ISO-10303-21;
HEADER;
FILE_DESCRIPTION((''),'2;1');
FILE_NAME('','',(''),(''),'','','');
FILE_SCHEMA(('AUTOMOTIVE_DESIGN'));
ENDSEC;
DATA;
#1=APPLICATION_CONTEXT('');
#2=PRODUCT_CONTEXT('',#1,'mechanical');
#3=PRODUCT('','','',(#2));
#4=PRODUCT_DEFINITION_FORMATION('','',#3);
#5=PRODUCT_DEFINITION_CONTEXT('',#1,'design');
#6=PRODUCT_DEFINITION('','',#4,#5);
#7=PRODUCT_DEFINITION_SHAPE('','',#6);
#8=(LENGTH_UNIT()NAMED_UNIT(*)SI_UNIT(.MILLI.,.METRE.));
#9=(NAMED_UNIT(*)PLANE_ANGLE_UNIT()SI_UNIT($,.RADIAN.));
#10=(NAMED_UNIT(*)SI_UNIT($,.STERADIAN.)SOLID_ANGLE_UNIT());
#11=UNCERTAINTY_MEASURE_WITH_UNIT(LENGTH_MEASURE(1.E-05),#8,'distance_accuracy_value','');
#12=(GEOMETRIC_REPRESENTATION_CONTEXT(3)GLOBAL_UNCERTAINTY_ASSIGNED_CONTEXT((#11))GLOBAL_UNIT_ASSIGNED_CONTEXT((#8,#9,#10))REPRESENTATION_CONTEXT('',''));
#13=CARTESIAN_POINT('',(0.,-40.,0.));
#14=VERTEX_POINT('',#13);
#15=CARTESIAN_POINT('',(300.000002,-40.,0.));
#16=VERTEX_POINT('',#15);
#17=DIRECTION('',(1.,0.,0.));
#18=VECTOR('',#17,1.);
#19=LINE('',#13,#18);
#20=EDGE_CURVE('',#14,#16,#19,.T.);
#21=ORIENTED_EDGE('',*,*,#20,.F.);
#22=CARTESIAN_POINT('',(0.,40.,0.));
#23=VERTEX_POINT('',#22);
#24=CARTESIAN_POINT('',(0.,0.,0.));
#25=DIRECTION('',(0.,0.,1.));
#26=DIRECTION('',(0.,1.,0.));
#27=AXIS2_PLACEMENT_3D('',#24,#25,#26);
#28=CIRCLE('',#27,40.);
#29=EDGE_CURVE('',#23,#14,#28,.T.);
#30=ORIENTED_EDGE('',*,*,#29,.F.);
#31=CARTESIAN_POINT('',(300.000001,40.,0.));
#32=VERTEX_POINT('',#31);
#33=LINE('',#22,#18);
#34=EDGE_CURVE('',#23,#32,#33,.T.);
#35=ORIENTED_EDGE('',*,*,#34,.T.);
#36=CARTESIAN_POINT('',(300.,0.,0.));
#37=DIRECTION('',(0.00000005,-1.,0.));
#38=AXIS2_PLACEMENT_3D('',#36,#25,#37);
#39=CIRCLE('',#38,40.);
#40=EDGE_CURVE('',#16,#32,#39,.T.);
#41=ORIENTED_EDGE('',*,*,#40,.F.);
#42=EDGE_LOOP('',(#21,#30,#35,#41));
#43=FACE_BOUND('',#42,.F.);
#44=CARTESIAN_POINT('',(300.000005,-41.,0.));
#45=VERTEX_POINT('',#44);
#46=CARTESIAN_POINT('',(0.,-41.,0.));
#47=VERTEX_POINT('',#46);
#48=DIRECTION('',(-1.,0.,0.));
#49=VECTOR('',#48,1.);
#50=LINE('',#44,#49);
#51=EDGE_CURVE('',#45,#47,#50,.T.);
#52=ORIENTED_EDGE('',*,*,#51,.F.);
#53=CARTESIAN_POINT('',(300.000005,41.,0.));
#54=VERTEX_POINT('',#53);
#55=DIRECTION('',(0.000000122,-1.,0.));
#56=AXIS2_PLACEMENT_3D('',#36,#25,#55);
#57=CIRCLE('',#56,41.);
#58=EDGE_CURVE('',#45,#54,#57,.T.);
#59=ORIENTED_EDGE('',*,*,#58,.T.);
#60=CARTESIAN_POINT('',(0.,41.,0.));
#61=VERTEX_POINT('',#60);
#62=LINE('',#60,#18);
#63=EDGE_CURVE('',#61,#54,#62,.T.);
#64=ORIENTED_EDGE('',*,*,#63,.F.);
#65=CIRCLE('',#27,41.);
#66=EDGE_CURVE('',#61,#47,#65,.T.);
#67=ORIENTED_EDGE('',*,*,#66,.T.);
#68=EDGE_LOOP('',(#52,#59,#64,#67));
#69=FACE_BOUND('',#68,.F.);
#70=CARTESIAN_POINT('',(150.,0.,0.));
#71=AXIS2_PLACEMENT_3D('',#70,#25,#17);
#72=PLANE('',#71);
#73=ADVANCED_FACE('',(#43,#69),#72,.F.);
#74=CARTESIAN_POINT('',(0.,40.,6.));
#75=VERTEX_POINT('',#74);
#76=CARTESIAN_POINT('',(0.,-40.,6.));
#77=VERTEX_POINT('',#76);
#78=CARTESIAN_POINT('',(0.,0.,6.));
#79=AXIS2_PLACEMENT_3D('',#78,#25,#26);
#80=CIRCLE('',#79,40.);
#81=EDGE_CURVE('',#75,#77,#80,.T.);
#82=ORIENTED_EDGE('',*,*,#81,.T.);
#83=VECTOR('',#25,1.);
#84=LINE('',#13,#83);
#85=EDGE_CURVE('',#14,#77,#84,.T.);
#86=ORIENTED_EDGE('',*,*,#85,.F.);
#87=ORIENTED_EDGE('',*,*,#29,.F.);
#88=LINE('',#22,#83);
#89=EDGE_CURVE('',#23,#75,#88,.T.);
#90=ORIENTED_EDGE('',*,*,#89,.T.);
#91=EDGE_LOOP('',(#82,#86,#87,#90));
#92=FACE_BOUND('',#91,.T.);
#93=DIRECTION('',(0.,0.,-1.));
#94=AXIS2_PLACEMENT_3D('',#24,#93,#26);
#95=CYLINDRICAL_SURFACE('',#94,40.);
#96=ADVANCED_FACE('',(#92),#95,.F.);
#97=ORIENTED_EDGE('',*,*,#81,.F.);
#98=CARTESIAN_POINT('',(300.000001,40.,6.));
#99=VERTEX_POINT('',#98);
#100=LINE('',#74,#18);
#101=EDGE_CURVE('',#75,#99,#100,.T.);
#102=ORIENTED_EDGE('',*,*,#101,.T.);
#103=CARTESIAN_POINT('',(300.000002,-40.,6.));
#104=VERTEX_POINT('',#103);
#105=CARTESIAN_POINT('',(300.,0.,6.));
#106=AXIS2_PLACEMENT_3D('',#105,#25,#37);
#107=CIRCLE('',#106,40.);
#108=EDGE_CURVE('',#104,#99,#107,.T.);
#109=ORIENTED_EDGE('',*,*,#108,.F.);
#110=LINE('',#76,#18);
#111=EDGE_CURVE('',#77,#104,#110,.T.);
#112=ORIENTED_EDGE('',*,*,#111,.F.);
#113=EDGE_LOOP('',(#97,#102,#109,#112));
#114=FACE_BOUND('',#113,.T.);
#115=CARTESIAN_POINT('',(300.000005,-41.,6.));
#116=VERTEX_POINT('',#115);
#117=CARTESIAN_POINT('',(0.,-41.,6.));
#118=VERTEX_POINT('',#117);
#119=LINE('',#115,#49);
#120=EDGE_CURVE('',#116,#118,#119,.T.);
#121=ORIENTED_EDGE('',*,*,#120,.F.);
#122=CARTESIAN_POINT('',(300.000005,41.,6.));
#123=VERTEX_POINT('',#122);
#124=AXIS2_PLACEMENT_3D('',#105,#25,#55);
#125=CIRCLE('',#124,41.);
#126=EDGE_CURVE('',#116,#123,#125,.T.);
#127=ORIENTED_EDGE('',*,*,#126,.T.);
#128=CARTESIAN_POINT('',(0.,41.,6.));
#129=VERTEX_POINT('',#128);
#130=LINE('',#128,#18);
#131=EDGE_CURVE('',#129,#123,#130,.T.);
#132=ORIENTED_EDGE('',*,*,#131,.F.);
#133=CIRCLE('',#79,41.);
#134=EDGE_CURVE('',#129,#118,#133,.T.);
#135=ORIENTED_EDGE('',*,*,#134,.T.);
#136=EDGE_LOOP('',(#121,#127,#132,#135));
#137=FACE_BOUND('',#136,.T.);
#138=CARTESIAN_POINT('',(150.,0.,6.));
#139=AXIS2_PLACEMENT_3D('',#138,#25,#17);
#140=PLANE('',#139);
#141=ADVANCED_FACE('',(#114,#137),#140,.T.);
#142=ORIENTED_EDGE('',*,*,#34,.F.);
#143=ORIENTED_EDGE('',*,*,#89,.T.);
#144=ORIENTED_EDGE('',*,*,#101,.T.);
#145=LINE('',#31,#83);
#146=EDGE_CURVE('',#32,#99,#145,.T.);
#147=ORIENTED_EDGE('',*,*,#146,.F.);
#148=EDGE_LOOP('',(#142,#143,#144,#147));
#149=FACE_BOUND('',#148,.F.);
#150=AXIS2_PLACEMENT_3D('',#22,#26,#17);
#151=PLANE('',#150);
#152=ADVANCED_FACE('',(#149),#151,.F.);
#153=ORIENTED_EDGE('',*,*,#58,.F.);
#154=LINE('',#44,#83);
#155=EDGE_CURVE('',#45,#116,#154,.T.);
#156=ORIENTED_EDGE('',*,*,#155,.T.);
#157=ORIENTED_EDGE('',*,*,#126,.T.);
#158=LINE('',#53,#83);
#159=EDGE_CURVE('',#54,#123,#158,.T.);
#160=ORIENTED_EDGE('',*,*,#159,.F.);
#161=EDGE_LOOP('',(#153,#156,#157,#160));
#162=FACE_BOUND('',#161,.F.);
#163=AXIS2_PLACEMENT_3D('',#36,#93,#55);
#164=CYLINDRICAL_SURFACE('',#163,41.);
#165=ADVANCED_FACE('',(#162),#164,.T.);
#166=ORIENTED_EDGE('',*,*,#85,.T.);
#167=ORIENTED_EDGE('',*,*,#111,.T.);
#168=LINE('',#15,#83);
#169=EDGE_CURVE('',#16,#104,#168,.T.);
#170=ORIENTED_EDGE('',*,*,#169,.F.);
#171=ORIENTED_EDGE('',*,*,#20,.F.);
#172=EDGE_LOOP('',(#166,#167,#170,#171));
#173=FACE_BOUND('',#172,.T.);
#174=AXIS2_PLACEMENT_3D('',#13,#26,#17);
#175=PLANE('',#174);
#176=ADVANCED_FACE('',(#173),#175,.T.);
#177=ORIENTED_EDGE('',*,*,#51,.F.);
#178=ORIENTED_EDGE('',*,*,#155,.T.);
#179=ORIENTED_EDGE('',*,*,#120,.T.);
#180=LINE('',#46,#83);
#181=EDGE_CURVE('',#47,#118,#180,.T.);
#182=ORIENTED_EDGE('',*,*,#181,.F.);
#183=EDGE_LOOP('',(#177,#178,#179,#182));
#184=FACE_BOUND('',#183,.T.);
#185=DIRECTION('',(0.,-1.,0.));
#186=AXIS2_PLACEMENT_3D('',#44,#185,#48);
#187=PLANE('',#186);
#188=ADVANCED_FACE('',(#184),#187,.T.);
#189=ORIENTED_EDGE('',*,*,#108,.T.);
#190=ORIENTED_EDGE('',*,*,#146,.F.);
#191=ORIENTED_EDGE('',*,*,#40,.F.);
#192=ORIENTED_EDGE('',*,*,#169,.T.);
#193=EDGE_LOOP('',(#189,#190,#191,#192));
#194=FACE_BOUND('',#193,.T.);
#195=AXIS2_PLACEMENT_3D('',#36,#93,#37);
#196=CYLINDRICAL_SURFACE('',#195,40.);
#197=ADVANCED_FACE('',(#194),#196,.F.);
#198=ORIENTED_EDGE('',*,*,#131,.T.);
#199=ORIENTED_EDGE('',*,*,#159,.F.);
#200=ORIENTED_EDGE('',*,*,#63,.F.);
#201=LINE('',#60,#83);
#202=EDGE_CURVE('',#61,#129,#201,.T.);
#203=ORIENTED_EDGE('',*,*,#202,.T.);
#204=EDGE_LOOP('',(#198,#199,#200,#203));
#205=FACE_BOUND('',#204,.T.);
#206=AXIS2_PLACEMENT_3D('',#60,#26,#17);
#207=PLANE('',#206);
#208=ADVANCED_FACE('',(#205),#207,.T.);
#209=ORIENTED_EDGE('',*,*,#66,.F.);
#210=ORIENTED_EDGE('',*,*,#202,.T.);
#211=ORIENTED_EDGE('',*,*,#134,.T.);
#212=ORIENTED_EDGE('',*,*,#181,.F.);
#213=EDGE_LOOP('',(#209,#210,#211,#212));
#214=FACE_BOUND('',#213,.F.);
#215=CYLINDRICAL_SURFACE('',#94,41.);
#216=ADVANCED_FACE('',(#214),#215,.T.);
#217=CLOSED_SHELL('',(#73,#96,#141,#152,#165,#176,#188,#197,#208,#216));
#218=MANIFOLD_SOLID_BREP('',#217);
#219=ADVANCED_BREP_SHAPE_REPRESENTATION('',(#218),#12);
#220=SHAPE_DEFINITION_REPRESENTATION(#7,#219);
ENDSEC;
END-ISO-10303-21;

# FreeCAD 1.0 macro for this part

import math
import FreeCAD as App
import Part
import Sketcher

doc = App.newDocument("Part")
body = doc.addObject("PartDesign::Body", "Body")

# Sketch on XY plane
sketch1 = body.newObject("Sketcher::SketchObject", "Sketch")
sketch1.AttachmentSupport = (doc.getObject("XY_Plane"), [""])
sketch1.MapMode = "FlatFace"
sketch1.addGeometry([
    Part.ArcOfCircle(Part.Circle(App.Vector(0, 0, 0), App.Vector(0, 0, 1), 41), math.radians(90), math.radians(270)),  # 0
    Part.LineSegment(App.Vector(0, -41, 0), App.Vector(300, -41, 0)),  # 1
    Part.ArcOfCircle(Part.Circle(App.Vector(300, 0, 0), App.Vector(0, 0, 1), 41), math.radians(-90), math.radians(90)),  # 2
    Part.LineSegment(App.Vector(300, 41, 0), App.Vector(0, 41, 0)),  # 3
    Part.ArcOfCircle(Part.Circle(App.Vector(0, 0, 0), App.Vector(0, 0, 1), 40), math.radians(90), math.radians(270)),  # 4
    Part.LineSegment(App.Vector(0, 40, 0), App.Vector(300, 40, 0)),  # 5
    Part.ArcOfCircle(Part.Circle(App.Vector(300, 0, 0), App.Vector(0, 0, 1), 40), math.radians(-90), math.radians(90)),  # 6
    Part.LineSegment(App.Vector(300, -40, 0), App.Vector(0, -40, 0)),  # 7
], False)
sketch1.addConstraint([
    Sketcher.Constraint("Tangent", 0, 2, 1, 1),
    Sketcher.Constraint("Tangent", 1, 2, 2, 1),
    Sketcher.Constraint("Tangent", 2, 2, 3, 1),
    Sketcher.Constraint("Tangent", 3, 2, 0, 1),
    Sketcher.Constraint("Tangent", 4, 1, 5, 1),
    Sketcher.Constraint("Tangent", 5, 2, 6, 2),
    Sketcher.Constraint("Tangent", 6, 1, 7, 1),
    Sketcher.Constraint("Tangent", 7, 2, 4, 2),
    Sketcher.Constraint("Horizontal", 1),
    Sketcher.Constraint("Horizontal", 3),
    Sketcher.Constraint("Horizontal", 5),
    Sketcher.Constraint("Horizontal", 7),
    Sketcher.Constraint("Coincident", 0, 3, -1, 1),
    Sketcher.Constraint("Coincident", 4, 3, -1, 1),
    Sketcher.Constraint("Radius", 0, 41.0),
    Sketcher.Constraint("Radius", 4, 40.0),
    Sketcher.Constraint("DistanceX", 5, 1, 5, 2, 300.000001),
    Sketcher.Constraint("DistanceX", -1, 1, 2, 3, 300.0),
])
pad1 = body.newObject("PartDesign::Pad", "Pad")
pad1.Profile = sketch1
pad1.Length = 6

doc.recompute()
